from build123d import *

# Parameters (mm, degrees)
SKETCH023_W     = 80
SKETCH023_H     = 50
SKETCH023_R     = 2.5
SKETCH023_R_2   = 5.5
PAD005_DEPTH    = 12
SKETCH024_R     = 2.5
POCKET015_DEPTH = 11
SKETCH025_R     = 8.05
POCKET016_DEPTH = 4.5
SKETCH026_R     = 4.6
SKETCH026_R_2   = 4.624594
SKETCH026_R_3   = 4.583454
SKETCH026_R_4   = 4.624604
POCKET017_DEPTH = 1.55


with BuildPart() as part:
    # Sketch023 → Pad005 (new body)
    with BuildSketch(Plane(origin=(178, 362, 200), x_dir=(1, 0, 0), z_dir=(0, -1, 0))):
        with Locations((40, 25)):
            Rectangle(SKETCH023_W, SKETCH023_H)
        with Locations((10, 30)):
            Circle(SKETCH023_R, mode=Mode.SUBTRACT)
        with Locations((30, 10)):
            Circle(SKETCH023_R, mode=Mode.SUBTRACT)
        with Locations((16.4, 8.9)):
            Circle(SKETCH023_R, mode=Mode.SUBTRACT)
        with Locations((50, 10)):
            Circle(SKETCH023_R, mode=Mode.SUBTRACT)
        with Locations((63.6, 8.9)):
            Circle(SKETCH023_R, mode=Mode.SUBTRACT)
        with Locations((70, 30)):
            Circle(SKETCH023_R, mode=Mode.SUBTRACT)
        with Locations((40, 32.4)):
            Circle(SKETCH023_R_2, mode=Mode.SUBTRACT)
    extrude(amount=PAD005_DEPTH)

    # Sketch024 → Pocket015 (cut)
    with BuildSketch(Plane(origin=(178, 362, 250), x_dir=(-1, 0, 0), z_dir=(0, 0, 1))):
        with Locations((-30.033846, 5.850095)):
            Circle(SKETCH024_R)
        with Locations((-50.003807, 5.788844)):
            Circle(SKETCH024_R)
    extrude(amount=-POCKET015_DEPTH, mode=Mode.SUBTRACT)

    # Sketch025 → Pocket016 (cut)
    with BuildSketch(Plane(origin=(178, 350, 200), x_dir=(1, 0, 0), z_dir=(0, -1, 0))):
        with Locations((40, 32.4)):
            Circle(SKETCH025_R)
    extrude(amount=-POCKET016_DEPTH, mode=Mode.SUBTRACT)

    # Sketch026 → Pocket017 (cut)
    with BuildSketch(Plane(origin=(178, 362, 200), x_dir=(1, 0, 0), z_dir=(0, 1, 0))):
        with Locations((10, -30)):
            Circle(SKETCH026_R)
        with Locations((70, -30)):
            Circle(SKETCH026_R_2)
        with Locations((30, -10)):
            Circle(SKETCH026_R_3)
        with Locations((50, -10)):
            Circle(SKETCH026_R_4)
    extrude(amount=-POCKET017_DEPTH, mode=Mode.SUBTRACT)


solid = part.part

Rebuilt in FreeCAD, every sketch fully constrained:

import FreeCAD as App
import Part
import Sketcher
from FreeCAD import Vector
Q = App.Units.Quantity

doc = App.newDocument("Part")
body = doc.addObject("PartDesign::Body", "Body")

sketch1 = body.newObject("Sketcher::SketchObject", "Sketch")
sketch1.AttachmentSupport = (doc.getObject("XZ_Plane"), [""])
sketch1.MapMode = "FlatFace"
sketch1.AttachmentOffset = App.Placement(Vector(0, 0, -362), App.Rotation())
sketch1.addGeometry([
    Part.LineSegment(Vector(178, 250, 0), Vector(178, 200, 0)),
    Part.LineSegment(Vector(178, 200, 0), Vector(258, 200, 0)),
    Part.LineSegment(Vector(258, 200, 0), Vector(258, 250, 0)),
    Part.LineSegment(Vector(258, 250, 0), Vector(178, 250, 0)),
    Part.Circle(Vector(194.4, 208.9, 0), Vector(0, 0, 1), 2.5),
    Part.Circle(Vector(208, 210, 0), Vector(0, 0, 1), 2.5),
    Part.Circle(Vector(228, 210, 0), Vector(0, 0, 1), 2.5),
    Part.Circle(Vector(241.6, 208.9, 0), Vector(0, 0, 1), 2.5),
    Part.Circle(Vector(188, 230, 0), Vector(0, 0, 1), 2.5),
    Part.Circle(Vector(248, 230, 0), Vector(0, 0, 1), 2.5),
    Part.Circle(Vector(218, 232.4, 0), Vector(0, 0, 1), 5.5),
], False)
sketch1.addConstraint([
    Sketcher.Constraint("Coincident", 0, 2, 1, 1),
    Sketcher.Constraint("Coincident", 1, 2, 2, 1),
    Sketcher.Constraint("Coincident", 2, 2, 3, 1),
    Sketcher.Constraint("Coincident", 3, 2, 0, 1),
    Sketcher.Constraint("Vertical", 0),
    Sketcher.Constraint("Horizontal", 1),
    Sketcher.Constraint("Vertical", 2),
    Sketcher.Constraint("Horizontal", 3),
    Sketcher.Constraint("Equal", 4, 5),
    Sketcher.Constraint("Equal", 5, 6),
    Sketcher.Constraint("Equal", 6, 7),
    Sketcher.Constraint("Equal", 7, 8),
    Sketcher.Constraint("Equal", 8, 9),
    Sketcher.Constraint("Horizontal", 5, 3, 6, 3),
    Sketcher.Constraint("Horizontal", 4, 3, 7, 3),
    Sketcher.Constraint("Horizontal", 8, 3, 9, 3),
    Sketcher.Constraint("Diameter", 4, Q("5 mm")),
    Sketcher.Constraint("Diameter", 10, Q("11 mm")),
    Sketcher.Constraint("DistanceX", 1, 1, 1, 2, Q("80 mm")),
    Sketcher.Constraint("DistanceY", 0, 2, 0, 1, Q("50 mm")),
    Sketcher.Constraint("DistanceX", -1, 1, 5, 3, Q("208 mm")),
    Sketcher.Constraint("DistanceY", -1, 1, 5, 3, Q("210 mm")),
    Sketcher.Constraint("DistanceX", -1, 1, 6, 3, Q("228 mm")),
    Sketcher.Constraint("DistanceX", -1, 1, 8, 3, Q("188 mm")),
    Sketcher.Constraint("DistanceY", -1, 1, 8, 3, Q("230 mm")),
    Sketcher.Constraint("DistanceX", -1, 1, 9, 3, Q("248 mm")),
    Sketcher.Constraint("DistanceX", -1, 1, 10, 3, Q("218 mm")),
    Sketcher.Constraint("DistanceX", -1, 1, 0, 2, Q("178 mm")),
    Sketcher.Constraint("DistanceY", -1, 1, 0, 2, Q("200 mm")),
    Sketcher.Constraint("DistanceX", -1, 1, 4, 3, Q("194.4 mm")),
    Sketcher.Constraint("DistanceY", -1, 1, 4, 3, Q("208.9 mm")),
    Sketcher.Constraint("DistanceX", -1, 1, 7, 3, Q("241.6 mm")),
    Sketcher.Constraint("DistanceY", -1, 1, 10, 3, Q("232.4 mm")),
])
pad1 = body.newObject("PartDesign::Pad", "Pad")
pad1.Profile = sketch1
pad1.Length = 12

sketch2 = body.newObject("Sketcher::SketchObject", "Sketch001")
sketch2.AttachmentSupport = (doc.getObject("XY_Plane"), [""])
sketch2.MapMode = "FlatFace"
sketch2.AttachmentOffset = App.Placement(Vector(0, 0, 250), App.Rotation())
sketch2.addGeometry([
    Part.Circle(Vector(208, 356.1, 0), Vector(0, 0, 1), 2.5),
    Part.Circle(Vector(228, 356.2, 0), Vector(0, 0, 1), 2.5),
], False)
sketch2.addConstraint([
    Sketcher.Constraint("Equal", 0, 1),
    Sketcher.Constraint("Diameter", 0, Q("5 mm")),
    Sketcher.Constraint("DistanceX", 0, 3, 1, 3, Q("19.969961 mm")),
    Sketcher.Constraint("DistanceY", 0, 3, 1, 3, Q("0.061251 mm")),
    Sketcher.Constraint("DistanceX", -1, 1, 0, 3, Q("208.033846 mm")),
    Sketcher.Constraint("DistanceY", -1, 1, 0, 3, Q("356.149905 mm")),
])
pocket1 = body.newObject("PartDesign::Pocket", "Pocket")
pocket1.Profile = sketch2
pocket1.Length = 11

sketch3 = body.newObject("Sketcher::SketchObject", "Sketch002")
sketch3.AttachmentSupport = (doc.getObject("XZ_Plane"), [""])
sketch3.MapMode = "FlatFace"
sketch3.AttachmentOffset = App.Placement(Vector(0, 0, -350), App.Rotation())
sketch3.addGeometry(Part.Circle(Vector(218, 232, 0), Vector(0, 0, 1), 8), False)
sketch3.addConstraint([
    Sketcher.Constraint("Diameter", 0, Q("16.1 mm")),
    Sketcher.Constraint("DistanceX", -1, 1, 0, 3, Q("218 mm")),
    Sketcher.Constraint("DistanceY", -1, 1, 0, 3, Q("232.4 mm")),
])
pocket2 = body.newObject("PartDesign::Pocket", "Pocket001")
pocket2.Profile = sketch3
pocket2.Length = 4.5

sketch4 = body.newObject("Sketcher::SketchObject", "Sketch003")
sketch4.AttachmentSupport = (doc.getObject("XZ_Plane"), [""])
sketch4.MapMode = "FlatFace"
sketch4.AttachmentOffset = App.Placement(Vector(0, 0, -362), App.Rotation())
sketch4.addGeometry([
    Part.Circle(Vector(188, 230, 0), Vector(0, 0, 1), 4.6),
    Part.Circle(Vector(248, 230, 0), Vector(0, 0, 1), 4.6),
    Part.Circle(Vector(208, 210, 0), Vector(0, 0, 1), 4.6),
    Part.Circle(Vector(228, 210, 0), Vector(0, 0, 1), 4.6),
], False)
sketch4.addConstraint([
    Sketcher.Constraint("Horizontal", 0, 3, 1, 3),
    Sketcher.Constraint("Horizontal", 2, 3, 3, 3),
    Sketcher.Constraint("Diameter", 0, Q("9.2 mm")),
    Sketcher.Constraint("DistanceX", -1, 1, 0, 3, Q("188 mm")),
    Sketcher.Constraint("DistanceY", -1, 1, 0, 3, Q("230 mm")),
    Sketcher.Constraint("DistanceX", -1, 1, 1, 3, Q("248 mm")),
    Sketcher.Constraint("DistanceX", -1, 1, 2, 3, Q("208 mm")),
    Sketcher.Constraint("DistanceY", -1, 1, 2, 3, Q("210 mm")),
    Sketcher.Constraint("DistanceX", -1, 1, 3, 3, Q("228 mm")),
    Sketcher.Constraint("Diameter", 1, Q("9.249188 mm")),
    Sketcher.Constraint("Diameter", 2, Q("9.166908 mm")),
    Sketcher.Constraint("Diameter", 3, Q("9.249208 mm")),
])
pocket3 = body.newObject("PartDesign::Pocket", "Pocket002")
pocket3.Profile = sketch4
pocket3.Length = 1.55
pocket3.Reversed = True

doc.recompute()
